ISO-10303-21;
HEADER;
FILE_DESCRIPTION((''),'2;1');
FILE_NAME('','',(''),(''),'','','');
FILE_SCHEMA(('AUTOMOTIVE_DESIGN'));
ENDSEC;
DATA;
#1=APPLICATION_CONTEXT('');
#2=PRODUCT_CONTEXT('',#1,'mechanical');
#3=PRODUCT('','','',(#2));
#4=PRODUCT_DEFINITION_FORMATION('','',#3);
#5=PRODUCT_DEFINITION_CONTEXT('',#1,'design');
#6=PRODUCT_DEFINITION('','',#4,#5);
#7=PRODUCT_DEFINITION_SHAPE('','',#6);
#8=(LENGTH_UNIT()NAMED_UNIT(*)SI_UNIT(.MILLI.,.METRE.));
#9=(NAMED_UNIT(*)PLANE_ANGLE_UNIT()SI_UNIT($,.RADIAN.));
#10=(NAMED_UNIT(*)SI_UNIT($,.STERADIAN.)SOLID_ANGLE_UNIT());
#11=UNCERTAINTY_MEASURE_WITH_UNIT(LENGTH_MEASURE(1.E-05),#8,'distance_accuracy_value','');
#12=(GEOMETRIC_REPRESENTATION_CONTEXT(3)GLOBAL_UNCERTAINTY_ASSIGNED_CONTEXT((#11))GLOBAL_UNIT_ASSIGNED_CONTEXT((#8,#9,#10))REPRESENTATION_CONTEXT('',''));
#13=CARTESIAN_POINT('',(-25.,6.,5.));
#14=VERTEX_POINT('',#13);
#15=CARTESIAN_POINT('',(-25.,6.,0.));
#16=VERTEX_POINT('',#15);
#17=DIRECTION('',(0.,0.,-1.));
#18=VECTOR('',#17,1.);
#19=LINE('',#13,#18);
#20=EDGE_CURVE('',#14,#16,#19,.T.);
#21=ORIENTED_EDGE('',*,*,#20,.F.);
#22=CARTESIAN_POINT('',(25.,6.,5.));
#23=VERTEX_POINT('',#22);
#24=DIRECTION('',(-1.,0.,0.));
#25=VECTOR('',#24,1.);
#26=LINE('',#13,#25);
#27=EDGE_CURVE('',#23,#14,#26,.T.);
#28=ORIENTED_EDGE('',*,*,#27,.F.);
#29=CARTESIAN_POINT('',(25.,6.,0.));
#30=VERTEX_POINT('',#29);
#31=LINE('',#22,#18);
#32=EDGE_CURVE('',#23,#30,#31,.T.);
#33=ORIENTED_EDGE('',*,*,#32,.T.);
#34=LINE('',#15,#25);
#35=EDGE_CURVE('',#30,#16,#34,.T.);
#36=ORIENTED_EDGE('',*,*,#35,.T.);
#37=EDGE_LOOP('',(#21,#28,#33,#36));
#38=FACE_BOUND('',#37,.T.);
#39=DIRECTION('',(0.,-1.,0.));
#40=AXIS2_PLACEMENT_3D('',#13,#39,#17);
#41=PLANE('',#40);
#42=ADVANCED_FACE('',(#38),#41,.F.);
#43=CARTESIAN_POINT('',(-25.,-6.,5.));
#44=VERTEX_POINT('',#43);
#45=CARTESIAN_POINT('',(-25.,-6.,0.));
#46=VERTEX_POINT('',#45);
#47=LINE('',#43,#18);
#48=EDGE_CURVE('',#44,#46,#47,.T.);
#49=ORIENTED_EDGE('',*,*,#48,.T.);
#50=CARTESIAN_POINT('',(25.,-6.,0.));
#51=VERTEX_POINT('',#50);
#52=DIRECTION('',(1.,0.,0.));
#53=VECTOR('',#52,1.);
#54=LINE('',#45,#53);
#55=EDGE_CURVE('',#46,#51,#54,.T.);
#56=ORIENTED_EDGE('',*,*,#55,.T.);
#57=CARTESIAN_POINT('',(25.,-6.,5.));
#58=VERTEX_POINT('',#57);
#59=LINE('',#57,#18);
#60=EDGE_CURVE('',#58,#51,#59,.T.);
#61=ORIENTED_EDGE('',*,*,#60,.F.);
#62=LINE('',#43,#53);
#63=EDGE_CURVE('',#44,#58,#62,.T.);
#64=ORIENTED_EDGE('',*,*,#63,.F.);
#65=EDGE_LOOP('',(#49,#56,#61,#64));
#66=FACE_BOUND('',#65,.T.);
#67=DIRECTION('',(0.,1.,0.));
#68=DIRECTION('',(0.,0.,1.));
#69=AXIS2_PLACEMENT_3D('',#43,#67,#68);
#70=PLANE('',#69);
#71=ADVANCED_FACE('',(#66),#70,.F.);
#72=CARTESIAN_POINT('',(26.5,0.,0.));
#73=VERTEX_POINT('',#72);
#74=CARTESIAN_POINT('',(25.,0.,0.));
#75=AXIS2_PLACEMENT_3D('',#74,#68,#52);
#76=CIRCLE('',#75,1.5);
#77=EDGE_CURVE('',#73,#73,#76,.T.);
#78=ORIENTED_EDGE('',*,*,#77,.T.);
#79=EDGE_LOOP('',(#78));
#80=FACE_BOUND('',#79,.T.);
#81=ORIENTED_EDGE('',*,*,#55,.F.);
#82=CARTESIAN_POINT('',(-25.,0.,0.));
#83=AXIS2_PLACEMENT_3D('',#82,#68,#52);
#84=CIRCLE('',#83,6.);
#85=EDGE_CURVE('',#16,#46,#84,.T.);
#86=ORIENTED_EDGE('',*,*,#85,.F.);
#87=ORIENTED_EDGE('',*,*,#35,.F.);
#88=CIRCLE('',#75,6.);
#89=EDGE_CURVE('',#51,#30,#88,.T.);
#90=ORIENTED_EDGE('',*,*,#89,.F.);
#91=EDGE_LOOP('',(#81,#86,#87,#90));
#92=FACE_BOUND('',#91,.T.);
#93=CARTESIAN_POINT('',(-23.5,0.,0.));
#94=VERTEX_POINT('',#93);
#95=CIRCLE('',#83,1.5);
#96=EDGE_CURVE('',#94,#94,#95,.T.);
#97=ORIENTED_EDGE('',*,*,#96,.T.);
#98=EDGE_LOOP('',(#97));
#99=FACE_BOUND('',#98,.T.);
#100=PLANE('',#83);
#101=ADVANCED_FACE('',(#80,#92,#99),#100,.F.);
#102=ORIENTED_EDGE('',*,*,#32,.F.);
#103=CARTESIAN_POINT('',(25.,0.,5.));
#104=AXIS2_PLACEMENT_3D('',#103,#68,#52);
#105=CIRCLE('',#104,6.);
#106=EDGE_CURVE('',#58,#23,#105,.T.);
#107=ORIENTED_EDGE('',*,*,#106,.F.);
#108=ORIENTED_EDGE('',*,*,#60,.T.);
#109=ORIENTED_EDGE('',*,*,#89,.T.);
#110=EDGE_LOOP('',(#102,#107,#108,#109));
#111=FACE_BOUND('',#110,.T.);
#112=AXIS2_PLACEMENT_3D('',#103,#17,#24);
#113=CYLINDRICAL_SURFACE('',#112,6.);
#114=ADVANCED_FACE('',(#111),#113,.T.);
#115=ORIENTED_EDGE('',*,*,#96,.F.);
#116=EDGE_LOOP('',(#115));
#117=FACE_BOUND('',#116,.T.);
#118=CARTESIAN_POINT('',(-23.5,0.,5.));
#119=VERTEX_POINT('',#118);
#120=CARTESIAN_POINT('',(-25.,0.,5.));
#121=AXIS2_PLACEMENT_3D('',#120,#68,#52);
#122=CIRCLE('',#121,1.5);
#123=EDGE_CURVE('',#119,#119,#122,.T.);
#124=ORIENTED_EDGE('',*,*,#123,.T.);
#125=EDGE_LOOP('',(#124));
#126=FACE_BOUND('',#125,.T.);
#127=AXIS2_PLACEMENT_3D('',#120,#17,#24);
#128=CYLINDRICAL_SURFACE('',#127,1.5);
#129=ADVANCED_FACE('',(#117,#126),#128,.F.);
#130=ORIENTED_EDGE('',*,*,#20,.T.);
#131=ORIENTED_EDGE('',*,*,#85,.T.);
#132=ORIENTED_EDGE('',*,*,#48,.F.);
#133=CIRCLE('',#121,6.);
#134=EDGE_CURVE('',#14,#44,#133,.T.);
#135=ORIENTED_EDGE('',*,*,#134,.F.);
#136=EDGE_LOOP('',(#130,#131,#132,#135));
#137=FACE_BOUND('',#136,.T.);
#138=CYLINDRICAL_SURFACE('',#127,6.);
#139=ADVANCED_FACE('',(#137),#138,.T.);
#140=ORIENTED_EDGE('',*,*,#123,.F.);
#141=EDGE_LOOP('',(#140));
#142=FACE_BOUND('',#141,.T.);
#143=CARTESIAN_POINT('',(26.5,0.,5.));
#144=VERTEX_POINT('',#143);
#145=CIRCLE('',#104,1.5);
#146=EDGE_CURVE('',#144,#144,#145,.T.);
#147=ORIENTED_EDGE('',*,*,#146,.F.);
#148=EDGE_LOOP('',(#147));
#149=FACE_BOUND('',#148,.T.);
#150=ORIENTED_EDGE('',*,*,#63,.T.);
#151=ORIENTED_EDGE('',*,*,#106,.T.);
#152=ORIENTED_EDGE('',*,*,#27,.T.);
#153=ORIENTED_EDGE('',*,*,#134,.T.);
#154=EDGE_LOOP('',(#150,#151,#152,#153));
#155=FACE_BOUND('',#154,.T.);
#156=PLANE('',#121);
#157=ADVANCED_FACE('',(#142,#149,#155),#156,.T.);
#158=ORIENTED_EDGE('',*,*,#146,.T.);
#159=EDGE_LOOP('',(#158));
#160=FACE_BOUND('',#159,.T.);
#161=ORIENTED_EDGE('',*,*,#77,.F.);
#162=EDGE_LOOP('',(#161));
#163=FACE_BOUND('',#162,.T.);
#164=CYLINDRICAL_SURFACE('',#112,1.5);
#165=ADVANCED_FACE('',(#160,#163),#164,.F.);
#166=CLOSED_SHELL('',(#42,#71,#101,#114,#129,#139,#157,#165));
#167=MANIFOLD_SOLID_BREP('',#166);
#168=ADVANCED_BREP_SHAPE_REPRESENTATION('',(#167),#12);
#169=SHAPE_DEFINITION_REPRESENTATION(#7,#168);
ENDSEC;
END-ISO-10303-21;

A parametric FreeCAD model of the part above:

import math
import FreeCAD as App
import Part
import Sketcher

V = App.Vector

doc = App.newDocument("Part")
body = doc.addObject("PartDesign::Body", "Body")

sketch1 = body.newObject("Sketcher::SketchObject", "Sketch")
sketch1.AttachmentSupport = (doc.getObject("XY_Plane"), [""])
sketch1.MapMode = "FlatFace"
sketch1.addGeometry([
    Part.LineSegment(V(25, 6, 0), V(-25, 6, 0)),
    Part.ArcOfCircle(Part.Circle(V(-25, 0, 0), V(0, 0, 1), 6), math.radians(90), math.radians(270)),
    Part.LineSegment(V(-25, -6, 0), V(25, -6, 0)),
    Part.ArcOfCircle(Part.Circle(V(25, 0, 0), V(0, 0, 1), 6), math.radians(-90), math.radians(90)),
    Part.Circle(V(25, 0, 0), V(0, 0, 1), 1.5),
    Part.Circle(V(-25, 0, 0), V(0, 0, 1), 1.5),
], False)
sketch1.addConstraint([
    Sketcher.Constraint("Tangent", 0, 2, 1, 1),
    Sketcher.Constraint("Tangent", 1, 2, 2, 1),
    Sketcher.Constraint("Tangent", 2, 2, 3, 1),
    Sketcher.Constraint("Tangent", 3, 2, 0, 1),
    Sketcher.Constraint("Horizontal", 0),
    Sketcher.Constraint("Horizontal", 2),
    Sketcher.Constraint("Coincident", 4, 3, 3, 3),
    Sketcher.Constraint("Coincident", 5, 3, 1, 3),
    Sketcher.Constraint("Equal", 4, 5),
    Sketcher.Constraint("Symmetric", 1, 3, 3, 3, -1, 1),
    Sketcher.Constraint("Diameter", 4, 3.0),
    Sketcher.Constraint("Radius", 1, 6.0),
    Sketcher.Constraint("DistanceX", 0, 2, 0, 1, 50.0),
])
pad1 = body.newObject("PartDesign::Pad", "Pad")
pad1.Profile = sketch1
pad1.Length = 5

doc.recompute()
